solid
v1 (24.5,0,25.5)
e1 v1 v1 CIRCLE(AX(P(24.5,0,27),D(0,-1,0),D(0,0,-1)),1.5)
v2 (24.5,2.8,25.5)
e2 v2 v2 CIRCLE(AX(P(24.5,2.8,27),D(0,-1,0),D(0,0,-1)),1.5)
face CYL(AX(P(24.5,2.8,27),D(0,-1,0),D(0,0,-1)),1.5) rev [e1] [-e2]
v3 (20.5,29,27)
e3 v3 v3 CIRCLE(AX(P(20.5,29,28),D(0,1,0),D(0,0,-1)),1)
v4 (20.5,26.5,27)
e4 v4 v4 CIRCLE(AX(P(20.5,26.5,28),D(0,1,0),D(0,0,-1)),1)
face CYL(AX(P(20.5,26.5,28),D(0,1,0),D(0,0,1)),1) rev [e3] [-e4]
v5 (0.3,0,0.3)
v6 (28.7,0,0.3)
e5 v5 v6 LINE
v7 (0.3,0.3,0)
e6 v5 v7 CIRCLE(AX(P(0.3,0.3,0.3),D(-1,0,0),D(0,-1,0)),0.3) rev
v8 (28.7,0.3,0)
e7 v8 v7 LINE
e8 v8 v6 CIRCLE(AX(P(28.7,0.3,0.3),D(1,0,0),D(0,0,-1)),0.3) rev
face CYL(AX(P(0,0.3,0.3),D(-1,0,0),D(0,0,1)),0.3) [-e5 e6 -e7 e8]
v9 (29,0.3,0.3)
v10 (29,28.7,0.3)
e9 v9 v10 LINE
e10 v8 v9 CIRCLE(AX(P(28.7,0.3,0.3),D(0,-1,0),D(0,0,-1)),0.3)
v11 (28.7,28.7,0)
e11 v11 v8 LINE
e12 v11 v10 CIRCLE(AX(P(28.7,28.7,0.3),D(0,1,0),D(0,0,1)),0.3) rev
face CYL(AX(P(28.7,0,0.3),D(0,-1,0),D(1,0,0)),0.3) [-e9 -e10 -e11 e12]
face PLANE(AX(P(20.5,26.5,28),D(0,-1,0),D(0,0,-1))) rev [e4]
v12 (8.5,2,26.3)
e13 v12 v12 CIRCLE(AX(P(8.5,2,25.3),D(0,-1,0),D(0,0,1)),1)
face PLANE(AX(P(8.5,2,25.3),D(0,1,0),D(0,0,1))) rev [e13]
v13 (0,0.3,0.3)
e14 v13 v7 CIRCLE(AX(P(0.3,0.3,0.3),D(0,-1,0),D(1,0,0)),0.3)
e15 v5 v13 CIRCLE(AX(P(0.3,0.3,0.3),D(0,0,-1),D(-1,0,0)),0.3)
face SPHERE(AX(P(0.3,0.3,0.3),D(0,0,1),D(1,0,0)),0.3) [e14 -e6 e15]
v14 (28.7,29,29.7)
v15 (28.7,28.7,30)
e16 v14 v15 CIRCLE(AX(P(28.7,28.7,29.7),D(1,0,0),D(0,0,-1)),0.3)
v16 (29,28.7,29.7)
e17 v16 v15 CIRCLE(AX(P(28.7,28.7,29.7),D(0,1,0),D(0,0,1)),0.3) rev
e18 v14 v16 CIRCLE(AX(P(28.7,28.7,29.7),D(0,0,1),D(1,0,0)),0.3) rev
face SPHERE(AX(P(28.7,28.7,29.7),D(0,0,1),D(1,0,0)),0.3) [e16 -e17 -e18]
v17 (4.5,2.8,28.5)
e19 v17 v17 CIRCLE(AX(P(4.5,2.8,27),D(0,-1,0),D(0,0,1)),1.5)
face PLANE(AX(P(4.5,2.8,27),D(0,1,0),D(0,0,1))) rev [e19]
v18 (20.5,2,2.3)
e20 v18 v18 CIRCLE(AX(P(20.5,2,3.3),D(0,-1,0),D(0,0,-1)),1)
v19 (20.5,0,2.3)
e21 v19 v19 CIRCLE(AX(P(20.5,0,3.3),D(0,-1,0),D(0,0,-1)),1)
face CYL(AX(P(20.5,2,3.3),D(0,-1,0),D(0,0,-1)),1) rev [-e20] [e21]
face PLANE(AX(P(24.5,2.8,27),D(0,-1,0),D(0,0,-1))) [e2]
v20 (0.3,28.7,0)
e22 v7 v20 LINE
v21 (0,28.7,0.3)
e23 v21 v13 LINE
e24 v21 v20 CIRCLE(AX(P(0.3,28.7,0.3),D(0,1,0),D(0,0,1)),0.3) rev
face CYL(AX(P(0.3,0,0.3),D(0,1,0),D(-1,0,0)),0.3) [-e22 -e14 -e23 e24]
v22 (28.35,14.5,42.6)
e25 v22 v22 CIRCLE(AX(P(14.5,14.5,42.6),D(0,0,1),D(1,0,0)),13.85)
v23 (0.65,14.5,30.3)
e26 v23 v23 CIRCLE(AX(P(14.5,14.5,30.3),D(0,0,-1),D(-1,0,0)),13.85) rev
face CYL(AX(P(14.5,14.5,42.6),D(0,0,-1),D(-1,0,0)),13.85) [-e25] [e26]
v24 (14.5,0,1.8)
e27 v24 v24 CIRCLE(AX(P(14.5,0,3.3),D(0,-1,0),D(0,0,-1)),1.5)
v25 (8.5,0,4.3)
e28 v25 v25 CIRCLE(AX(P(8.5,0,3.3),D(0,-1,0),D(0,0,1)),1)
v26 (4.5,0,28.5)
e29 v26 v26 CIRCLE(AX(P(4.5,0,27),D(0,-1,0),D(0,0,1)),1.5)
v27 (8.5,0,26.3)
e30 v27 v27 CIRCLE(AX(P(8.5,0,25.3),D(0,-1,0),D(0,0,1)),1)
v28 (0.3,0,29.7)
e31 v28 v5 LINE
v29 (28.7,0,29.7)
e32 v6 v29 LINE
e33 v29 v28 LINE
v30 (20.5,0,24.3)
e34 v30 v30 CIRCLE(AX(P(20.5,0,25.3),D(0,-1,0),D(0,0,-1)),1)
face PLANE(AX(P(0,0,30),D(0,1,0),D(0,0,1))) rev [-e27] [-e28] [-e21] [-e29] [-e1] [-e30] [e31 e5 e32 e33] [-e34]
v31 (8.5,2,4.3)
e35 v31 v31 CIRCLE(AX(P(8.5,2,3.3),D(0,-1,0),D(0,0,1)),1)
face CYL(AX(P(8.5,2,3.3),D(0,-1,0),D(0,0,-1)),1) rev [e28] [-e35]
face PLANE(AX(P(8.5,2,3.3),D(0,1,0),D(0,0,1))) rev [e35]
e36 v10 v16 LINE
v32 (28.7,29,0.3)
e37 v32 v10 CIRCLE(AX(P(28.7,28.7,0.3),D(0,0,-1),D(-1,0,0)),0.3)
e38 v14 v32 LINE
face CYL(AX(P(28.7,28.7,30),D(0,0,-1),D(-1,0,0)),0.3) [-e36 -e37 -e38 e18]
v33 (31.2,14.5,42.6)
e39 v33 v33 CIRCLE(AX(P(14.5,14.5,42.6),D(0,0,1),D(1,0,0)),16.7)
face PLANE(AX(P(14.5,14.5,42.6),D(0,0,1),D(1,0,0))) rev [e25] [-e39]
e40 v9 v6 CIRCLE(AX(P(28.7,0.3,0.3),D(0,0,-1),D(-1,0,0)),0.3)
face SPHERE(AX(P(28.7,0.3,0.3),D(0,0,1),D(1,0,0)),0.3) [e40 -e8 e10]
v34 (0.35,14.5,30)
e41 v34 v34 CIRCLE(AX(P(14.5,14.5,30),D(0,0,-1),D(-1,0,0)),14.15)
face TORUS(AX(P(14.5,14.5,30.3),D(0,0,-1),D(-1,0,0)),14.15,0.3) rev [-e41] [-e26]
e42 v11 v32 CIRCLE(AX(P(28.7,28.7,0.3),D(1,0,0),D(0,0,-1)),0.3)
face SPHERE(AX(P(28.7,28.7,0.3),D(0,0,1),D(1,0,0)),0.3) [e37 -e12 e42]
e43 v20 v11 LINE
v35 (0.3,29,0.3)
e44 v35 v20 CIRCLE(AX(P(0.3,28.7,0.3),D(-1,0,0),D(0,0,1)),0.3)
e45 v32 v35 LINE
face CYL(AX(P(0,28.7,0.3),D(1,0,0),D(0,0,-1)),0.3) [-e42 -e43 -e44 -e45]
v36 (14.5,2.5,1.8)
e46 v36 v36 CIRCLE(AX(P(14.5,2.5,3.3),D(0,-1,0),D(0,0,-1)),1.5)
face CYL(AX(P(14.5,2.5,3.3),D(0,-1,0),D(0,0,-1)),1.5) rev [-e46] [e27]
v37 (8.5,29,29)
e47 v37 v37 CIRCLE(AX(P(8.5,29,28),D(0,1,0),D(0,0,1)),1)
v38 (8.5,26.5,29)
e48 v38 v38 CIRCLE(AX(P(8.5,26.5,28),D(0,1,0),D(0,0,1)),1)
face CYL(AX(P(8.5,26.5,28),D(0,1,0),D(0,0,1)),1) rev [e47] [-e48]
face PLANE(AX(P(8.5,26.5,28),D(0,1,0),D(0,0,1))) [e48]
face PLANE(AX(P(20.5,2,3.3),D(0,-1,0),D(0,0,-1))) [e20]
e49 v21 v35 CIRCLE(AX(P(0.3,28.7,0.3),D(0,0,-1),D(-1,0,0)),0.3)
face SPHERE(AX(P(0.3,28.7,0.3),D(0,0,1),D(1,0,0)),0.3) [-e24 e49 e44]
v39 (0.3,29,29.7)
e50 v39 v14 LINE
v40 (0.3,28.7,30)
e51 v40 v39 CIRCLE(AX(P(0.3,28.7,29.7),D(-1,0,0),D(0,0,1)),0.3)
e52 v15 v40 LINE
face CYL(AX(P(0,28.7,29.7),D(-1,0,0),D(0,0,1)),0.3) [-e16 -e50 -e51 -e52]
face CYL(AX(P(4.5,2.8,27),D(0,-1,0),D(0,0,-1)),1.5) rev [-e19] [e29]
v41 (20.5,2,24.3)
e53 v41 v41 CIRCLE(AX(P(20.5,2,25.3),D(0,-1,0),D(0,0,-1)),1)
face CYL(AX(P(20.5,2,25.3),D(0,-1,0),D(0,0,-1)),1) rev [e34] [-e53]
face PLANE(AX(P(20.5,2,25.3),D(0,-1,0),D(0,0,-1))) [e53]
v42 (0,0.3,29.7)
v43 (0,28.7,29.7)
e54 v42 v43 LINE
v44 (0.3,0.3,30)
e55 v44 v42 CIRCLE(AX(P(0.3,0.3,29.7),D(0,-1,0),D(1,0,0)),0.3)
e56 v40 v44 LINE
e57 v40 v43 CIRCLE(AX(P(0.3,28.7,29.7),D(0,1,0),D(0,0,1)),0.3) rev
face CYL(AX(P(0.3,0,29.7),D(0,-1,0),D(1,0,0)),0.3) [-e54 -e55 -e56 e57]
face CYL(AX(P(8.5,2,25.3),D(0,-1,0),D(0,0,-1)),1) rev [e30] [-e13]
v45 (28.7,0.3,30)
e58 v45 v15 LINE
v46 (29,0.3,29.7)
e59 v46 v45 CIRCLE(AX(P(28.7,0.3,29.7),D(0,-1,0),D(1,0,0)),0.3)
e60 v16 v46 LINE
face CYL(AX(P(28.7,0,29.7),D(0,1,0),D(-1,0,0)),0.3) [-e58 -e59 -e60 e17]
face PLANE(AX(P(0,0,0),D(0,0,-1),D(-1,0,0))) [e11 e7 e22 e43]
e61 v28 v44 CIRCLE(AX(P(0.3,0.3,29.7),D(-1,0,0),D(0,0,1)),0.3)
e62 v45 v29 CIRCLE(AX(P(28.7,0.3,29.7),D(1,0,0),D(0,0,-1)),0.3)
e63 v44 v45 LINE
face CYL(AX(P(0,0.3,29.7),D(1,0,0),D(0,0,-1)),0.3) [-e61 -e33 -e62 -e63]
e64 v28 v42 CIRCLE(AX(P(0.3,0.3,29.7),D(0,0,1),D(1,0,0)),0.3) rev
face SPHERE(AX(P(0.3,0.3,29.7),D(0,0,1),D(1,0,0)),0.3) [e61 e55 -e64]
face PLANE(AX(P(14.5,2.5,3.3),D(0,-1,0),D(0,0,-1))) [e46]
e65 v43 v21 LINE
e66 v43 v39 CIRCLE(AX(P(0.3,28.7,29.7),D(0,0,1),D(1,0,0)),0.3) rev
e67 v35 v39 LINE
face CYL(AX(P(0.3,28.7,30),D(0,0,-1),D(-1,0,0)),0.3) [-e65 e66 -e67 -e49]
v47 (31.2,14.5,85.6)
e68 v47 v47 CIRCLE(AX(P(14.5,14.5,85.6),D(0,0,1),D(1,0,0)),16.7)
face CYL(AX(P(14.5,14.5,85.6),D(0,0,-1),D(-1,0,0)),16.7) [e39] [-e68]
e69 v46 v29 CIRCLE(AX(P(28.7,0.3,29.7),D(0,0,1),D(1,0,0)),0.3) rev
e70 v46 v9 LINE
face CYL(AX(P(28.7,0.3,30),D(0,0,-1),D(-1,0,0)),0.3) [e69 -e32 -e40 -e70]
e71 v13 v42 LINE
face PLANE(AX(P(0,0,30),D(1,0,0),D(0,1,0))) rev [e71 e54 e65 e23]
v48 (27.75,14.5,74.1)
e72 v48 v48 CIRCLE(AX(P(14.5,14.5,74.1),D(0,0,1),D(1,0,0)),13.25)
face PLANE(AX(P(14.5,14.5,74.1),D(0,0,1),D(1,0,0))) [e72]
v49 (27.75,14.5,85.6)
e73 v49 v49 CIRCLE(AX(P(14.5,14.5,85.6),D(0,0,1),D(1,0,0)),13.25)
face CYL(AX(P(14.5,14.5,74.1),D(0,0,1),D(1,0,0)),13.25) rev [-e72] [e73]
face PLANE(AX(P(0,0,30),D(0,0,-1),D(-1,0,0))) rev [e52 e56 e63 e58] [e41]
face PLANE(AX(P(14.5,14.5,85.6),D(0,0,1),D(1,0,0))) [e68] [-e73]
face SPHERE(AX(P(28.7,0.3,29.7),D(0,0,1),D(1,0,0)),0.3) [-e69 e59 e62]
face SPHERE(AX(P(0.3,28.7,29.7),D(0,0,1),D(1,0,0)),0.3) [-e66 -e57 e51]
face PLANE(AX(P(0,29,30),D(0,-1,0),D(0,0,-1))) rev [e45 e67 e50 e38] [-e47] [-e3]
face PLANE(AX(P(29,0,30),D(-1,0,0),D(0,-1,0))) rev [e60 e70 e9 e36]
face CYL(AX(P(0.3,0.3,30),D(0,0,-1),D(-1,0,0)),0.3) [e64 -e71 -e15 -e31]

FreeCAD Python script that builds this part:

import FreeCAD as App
import Part
import Sketcher

V = App.Vector
Q = App.Units.Quantity


def edges_at(feature, points):
    """Names of the edges that pass closest to the given points."""
    edges = feature.Shape.Edges
    near = lambda p: min(range(len(edges)), key=lambda i: edges[i].distToShape(Part.Vertex(*p))[0])
    return sorted({f"Edge{near(p) + 1}" for p in points})


def add_polygon(sketch, points):
    """Adds a closed chain of lines whose ends are joined by coincident constraints."""
    first, n = sketch.GeometryCount, len(points)
    for a, b in zip(points, points[1:] + points[:1]):
        sketch.addGeometry(Part.LineSegment(App.Vector(*a, 0), App.Vector(*b, 0)), False)
    for i in range(n):
        sketch.addConstraint(Sketcher.Constraint("Coincident", first + i, 2, first + (i + 1) % n, 1))

doc = App.newDocument("Part")
body = doc.addObject("PartDesign::Body", "Body")

sketch1 = body.newObject("Sketcher::SketchObject", "Sketch")
sketch1.AttachmentSupport = (doc.getObject("XY_Plane"), [""])
sketch1.MapMode = "FlatFace"
add_polygon(sketch1, [(0, 29), (0, 0), (29, 0), (29, 29)])
sketch1.addConstraint([
    Sketcher.Constraint("Vertical", 0),
    Sketcher.Constraint("Horizontal", 1),
    Sketcher.Constraint("Vertical", 2),
    Sketcher.Constraint("Horizontal", 3),
    Sketcher.Constraint("Coincident", 0, 2, -1, 1),
    Sketcher.Constraint("Equal", 3, 0),
    Sketcher.Constraint("DistanceX", 1, 1, 1, 2, Q("29 mm")),
])
pad1 = body.newObject("PartDesign::Pad", "Pad")
pad1.Profile = sketch1
pad1.Length = 30

sketch2 = body.newObject("Sketcher::SketchObject", "Sketch001")
sketch2.AttachmentSupport = (doc.getObject("XZ_Plane"), [""])
sketch2.MapMode = "FlatFace"
sketch2.AttachmentOffset = App.Placement(V(0, 0, -29), App.Rotation())
sketch2.addGeometry([
    Part.Circle(V(8.5, 28, 0), V(0, 0, 1), 1),
    Part.Circle(V(20.5, 28, 0), V(0, 0, 1), 1),
], False)
sketch2.addConstraint([
    Sketcher.Constraint("Equal", 0, 1),
    Sketcher.Constraint("Horizontal", 0, 3, 1, 3),
    Sketcher.Constraint("Diameter", 0, Q("2 mm")),
    Sketcher.Constraint("DistanceY", -1, 1, 0, 3, Q("28 mm")),
    Sketcher.Constraint("DistanceX", 0, 3, 1, 3, Q("12 mm")),
    Sketcher.Constraint("DistanceX", -1, 1, 0, 3, Q("8.5 mm")),
])
pocket1 = body.newObject("PartDesign::Pocket", "Pocket")
pocket1.Profile = sketch2
pocket1.Length = 2.5
pocket1.Reversed = True

sketch3 = body.newObject("Sketcher::SketchObject", "Sketch002")
sketch3.AttachmentSupport = (doc.getObject("XZ_Plane"), [""])
sketch3.MapMode = "FlatFace"
sketch3.addGeometry([
    Part.Circle(V(24.5, 27, 0), V(0, 0, 1), 1.5),
    Part.Circle(V(4.5, 27, 0), V(0, 0, 1), 1.5),
], False)
sketch3.addConstraint([
    Sketcher.Constraint("Equal", 0, 1),
    Sketcher.Constraint("Horizontal", 0, 3, 1, 3),
    Sketcher.Constraint("Diameter", 0, Q("3 mm")),
    Sketcher.Constraint("DistanceY", -1, 1, 0, 3, Q("27 mm")),
    Sketcher.Constraint("DistanceX", 1, 3, 0, 3, Q("20 mm")),
    Sketcher.Constraint("DistanceX", -1, 1, 0, 3, Q("24.5 mm")),
])
pocket2 = body.newObject("PartDesign::Pocket", "Pocket001")
pocket2.Profile = sketch3
pocket2.Length = 2.8

sketch4 = body.newObject("Sketcher::SketchObject", "Sketch003")
sketch4.AttachmentSupport = (doc.getObject("XZ_Plane"), [""])
sketch4.MapMode = "FlatFace"
sketch4.addGeometry(Part.Circle(V(14.5, 3.3, 0), V(0, 0, 1), 1.5), False)
sketch4.addConstraint([
    Sketcher.Constraint("Diameter", 0, Q("3 mm")),
    Sketcher.Constraint("DistanceX", -1, 1, 0, 3, Q("14.5 mm")),
    Sketcher.Constraint("DistanceY", -1, 1, 0, 3, Q("3.3 mm")),
])
pocket3 = body.newObject("PartDesign::Pocket", "Pocket002")
pocket3.Profile = sketch4
pocket3.Length = 2.5

sketch5 = body.newObject("Sketcher::SketchObject", "Sketch004")
sketch5.AttachmentSupport = (doc.getObject("XZ_Plane"), [""])
sketch5.MapMode = "FlatFace"
sketch5.addGeometry([
    Part.Circle(V(20.5, 25.3, 0), V(0, 0, 1), 1),
    Part.Circle(V(20.5, 3.3, 0), V(0, 0, 1), 1),
    Part.Circle(V(8.5, 3.3, 0), V(0, 0, 1), 1),
    Part.Circle(V(8.5, 25.3, 0), V(0, 0, 1), 1),
], False)
sketch5.addConstraint([
    Sketcher.Constraint("Equal", 0, 1),
    Sketcher.Constraint("Equal", 1, 2),
    Sketcher.Constraint("Equal", 2, 3),
    Sketcher.Constraint("Horizontal", 1, 3, 2, 3),
    Sketcher.Constraint("Horizontal", 0, 3, 3, 3),
    Sketcher.Constraint("Vertical", 0, 3, 1, 3),
    Sketcher.Constraint("Vertical", 2, 3, 3, 3),
    Sketcher.Constraint("Diameter", 0, Q("2 mm")),
    Sketcher.Constraint("DistanceY", 1, 3, 0, 3, Q("22 mm")),
    Sketcher.Constraint("DistanceX", 2, 3, 1, 3, Q("12 mm")),
    Sketcher.Constraint("DistanceX", -1, 1, 0, 3, Q("20.5 mm")),
    Sketcher.Constraint("DistanceY", -1, 1, 0, 3, Q("25.3 mm")),
])
pocket4 = body.newObject("PartDesign::Pocket", "Pocket003")
pocket4.Profile = sketch5
pocket4.Length = 2

sketch6 = body.newObject("Sketcher::SketchObject", "Sketch005")
sketch6.AttachmentSupport = (doc.getObject("XY_Plane"), [""])
sketch6.MapMode = "FlatFace"
sketch6.AttachmentOffset = App.Placement(V(0, 0, 30), App.Rotation())
sketch6.addGeometry(Part.Circle(V(14, 14, 0), V(0, 0, 1), 14), False)
sketch6.addConstraint([
    Sketcher.Constraint("Diameter", 0, Q("27.7 mm")),
    Sketcher.Constraint("DistanceX", -1, 1, 0, 3, Q("14.5 mm")),
    Sketcher.Constraint("DistanceY", -1, 1, 0, 3, Q("14.5 mm")),
])
pad2 = body.newObject("PartDesign::Pad", "Pad001")
pad2.Profile = sketch6
pad2.Length = 12.6

sketch7 = body.newObject("Sketcher::SketchObject", "Sketch006")
sketch7.AttachmentSupport = (doc.getObject("XY_Plane"), [""])
sketch7.MapMode = "FlatFace"
sketch7.AttachmentOffset = App.Placement(V(0, 0, 42.6), App.Rotation())
sketch7.addGeometry(Part.Circle(V(14, 14, 0), V(0, 0, 1), 17), False)
sketch7.addConstraint([
    Sketcher.Constraint("Diameter", 0, Q("33.4 mm")),
    Sketcher.Constraint("DistanceX", -1, 1, 0, 3, Q("14.5 mm")),
    Sketcher.Constraint("DistanceY", -1, 1, 0, 3, Q("14.5 mm")),
])
pad3 = body.newObject("PartDesign::Pad", "Pad002")
pad3.Profile = sketch7
pad3.Length = 43
doc.recompute()

fillet = body.newObject("PartDesign::Fillet", "Fillet")
fillet.Base = (pad3, edges_at(pad3, [
    (29, 14.5, 30),
    (14.5, 29, 30),
    (0, 14.5, 30),
    (14.5, 29, 0),
    (0.65, 14.5, 30),
    (29, 14.5, 0),
    (14.5, 0, 0),
    (0, 14.5, 0),
    (14.5, 0, 30),
    (0, 29, 15),
    (29, 29, 15),
    (29, 0, 15),
    (0, 0, 15),
]))
fillet.Radius = 0.3

sketch8 = body.newObject("Sketcher::SketchObject", "Sketch007")
sketch8.AttachmentSupport = (doc.getObject("XY_Plane"), [""])
sketch8.MapMode = "FlatFace"
sketch8.AttachmentOffset = App.Placement(V(0, 0, 85.6), App.Rotation())
sketch8.addGeometry(Part.Circle(V(14, 14, 0), V(0, 0, 1), 13), False)
sketch8.addConstraint([
    Sketcher.Constraint("Diameter", 0, Q("26.5 mm")),
    Sketcher.Constraint("DistanceX", -1, 1, 0, 3, Q("14.5 mm")),
    Sketcher.Constraint("DistanceY", -1, 1, 0, 3, Q("14.5 mm")),
])
pocket5 = body.newObject("PartDesign::Pocket", "Pocket004")
pocket5.Profile = sketch8
pocket5.Length = 11.5

doc.recompute()
